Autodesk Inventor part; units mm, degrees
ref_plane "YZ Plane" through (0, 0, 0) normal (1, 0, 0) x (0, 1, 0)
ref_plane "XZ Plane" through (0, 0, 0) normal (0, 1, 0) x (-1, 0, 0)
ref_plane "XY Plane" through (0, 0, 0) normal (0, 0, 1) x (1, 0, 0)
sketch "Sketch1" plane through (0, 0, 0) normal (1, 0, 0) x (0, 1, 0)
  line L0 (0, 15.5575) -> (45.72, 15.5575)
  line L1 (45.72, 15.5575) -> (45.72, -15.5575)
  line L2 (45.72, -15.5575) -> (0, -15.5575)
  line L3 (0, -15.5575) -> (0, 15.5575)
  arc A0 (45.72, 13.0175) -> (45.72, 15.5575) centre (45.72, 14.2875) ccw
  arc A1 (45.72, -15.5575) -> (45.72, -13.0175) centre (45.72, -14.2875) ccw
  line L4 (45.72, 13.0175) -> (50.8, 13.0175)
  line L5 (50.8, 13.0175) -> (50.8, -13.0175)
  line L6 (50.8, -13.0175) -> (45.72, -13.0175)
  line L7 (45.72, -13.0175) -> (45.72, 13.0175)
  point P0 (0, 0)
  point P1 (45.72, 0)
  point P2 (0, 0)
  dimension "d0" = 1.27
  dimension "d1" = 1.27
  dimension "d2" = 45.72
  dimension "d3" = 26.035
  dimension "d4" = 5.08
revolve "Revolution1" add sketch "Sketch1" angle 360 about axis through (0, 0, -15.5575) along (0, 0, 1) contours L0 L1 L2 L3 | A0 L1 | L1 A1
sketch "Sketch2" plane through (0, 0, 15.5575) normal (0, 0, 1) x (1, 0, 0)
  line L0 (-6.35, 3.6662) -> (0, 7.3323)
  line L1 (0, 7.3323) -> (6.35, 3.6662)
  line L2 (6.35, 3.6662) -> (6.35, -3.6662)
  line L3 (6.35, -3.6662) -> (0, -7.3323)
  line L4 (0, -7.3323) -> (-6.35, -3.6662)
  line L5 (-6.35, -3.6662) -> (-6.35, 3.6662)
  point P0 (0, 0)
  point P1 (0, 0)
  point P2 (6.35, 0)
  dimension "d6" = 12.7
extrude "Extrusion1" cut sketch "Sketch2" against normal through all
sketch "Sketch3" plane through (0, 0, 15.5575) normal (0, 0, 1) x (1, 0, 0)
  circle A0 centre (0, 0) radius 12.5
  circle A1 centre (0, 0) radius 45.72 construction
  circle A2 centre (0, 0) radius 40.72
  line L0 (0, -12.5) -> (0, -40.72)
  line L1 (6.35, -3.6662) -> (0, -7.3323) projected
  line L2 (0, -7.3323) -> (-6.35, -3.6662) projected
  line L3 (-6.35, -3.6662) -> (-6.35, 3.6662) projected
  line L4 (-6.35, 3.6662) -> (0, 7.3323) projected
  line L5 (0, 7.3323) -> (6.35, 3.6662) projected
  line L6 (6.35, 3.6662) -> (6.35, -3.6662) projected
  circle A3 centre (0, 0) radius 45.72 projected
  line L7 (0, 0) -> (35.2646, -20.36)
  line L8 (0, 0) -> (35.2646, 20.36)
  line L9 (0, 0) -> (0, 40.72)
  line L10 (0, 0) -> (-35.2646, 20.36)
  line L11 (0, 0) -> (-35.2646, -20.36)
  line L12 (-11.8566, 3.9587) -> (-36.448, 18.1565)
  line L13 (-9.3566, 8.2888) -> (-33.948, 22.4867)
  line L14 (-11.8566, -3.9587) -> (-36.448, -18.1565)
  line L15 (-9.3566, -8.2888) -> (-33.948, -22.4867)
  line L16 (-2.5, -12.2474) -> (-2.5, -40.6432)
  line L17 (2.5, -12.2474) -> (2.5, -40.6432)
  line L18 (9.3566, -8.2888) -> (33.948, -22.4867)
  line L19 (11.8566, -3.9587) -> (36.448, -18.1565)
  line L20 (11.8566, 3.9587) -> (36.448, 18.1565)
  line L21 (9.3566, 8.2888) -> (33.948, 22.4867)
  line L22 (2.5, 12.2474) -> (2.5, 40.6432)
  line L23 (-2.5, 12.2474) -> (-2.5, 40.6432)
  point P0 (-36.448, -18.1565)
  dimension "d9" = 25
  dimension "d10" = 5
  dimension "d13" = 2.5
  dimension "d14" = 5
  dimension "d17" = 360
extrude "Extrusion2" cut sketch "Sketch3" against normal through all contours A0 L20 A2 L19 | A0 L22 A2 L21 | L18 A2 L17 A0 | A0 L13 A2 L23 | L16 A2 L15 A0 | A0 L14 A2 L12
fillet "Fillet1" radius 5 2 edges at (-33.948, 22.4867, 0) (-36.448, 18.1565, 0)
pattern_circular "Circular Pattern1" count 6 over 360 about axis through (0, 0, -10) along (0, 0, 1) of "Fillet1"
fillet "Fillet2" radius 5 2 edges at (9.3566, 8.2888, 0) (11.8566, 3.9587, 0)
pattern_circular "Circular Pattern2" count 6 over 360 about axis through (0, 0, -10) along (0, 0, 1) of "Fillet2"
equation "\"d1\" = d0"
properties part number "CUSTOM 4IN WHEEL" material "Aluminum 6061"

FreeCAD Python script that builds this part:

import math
import FreeCAD as App
import Part
import Sketcher
from FreeCAD import Vector
Q = App.Units.Quantity


def edges_at(feature, points):
    """Names of the edges that pass closest to the given points."""
    edges = feature.Shape.Edges
    near = lambda p: min(range(len(edges)), key=lambda i: edges[i].distToShape(Part.Vertex(*p))[0])
    return sorted({f"Edge{near(p) + 1}" for p in points})

doc = App.newDocument("Part")
body = doc.addObject("PartDesign::Body", "Body")

# Sketch on YZ plane
sketch1 = doc.addObject("Sketcher::SketchObject", "Sketch")
body.addObject(sketch1)
sketch1.AttachmentSupport = (doc.YZ_Plane, [""])
sketch1.MapMode = "FlatFace"
sketch1.addGeometry([
    Part.LineSegment(Vector(45.7, 15.6, 0), Vector(0, 15.6, 0)),  # 0
    Part.LineSegment(Vector(0, 15.6, 0), Vector(0, -15.6, 0)),  # 1
    Part.LineSegment(Vector(0, -15.6, 0), Vector(45.7, -15.6, 0)),  # 2
    Part.ArcOfCircle(Part.Circle(Vector(45.7, -14.3, 0), Vector(0, 0, 1), 1.3), math.radians(-90), math.radians(90)),  # 3
    Part.LineSegment(Vector(45.7, -13, 0), Vector(45.7, 13, 0)),  # 4
    Part.ArcOfCircle(Part.Circle(Vector(45.7, 14.3, 0), Vector(0, 0, 1), 1.3), math.radians(-90), math.radians(90)),  # 5
], False)
sketch1.addConstraint([
    Sketcher.Constraint("Coincident", 0, 2, 1, 1),
    Sketcher.Constraint("Coincident", 1, 2, 2, 1),
    Sketcher.Constraint("Tangent", 2, 2, 3, 1),
    Sketcher.Constraint("Coincident", 3, 2, 4, 1),
    Sketcher.Constraint("Coincident", 4, 2, 5, 1),
    Sketcher.Constraint("Tangent", 5, 2, 0, 1),
    Sketcher.Constraint("Horizontal", 0),
    Sketcher.Constraint("Vertical", 1),
    Sketcher.Constraint("Horizontal", 2),
    Sketcher.Constraint("Vertical", 4),
    Sketcher.Constraint("Equal", 3, 5),
    Sketcher.Constraint("Symmetric", 0, 2, 1, 2, -1, 1),
    Sketcher.Constraint("Vertical", 3, 3, 5, 3),
    Sketcher.Constraint("Vertical", 2, 2, 3, 2),
    Sketcher.Constraint("Radius", 3, Q("0.05 in")),
    Sketcher.Constraint("DistanceX", 0, 2, 0, 1, Q("1.8 in")),
    Sketcher.Constraint("DistanceY", 4, 1, 4, 2, Q("1.025 in")),
])
revolution = doc.addObject("PartDesign::Revolution", "Revolution")
body.addObject(revolution)
revolution.Profile = sketch1
revolution.ReferenceAxis = (sketch1, ["V_Axis"])
revolution.Angle = 360

# Sketch on XY plane
sketch2 = doc.addObject("Sketcher::SketchObject", "Sketch001")
body.addObject(sketch2)
sketch2.AttachmentSupport = (doc.XY_Plane, [""])
sketch2.MapMode = "FlatFace"
sketch2.AttachmentOffset = App.Placement(Vector(0, 0, 0.6125 * 25.4), App.Rotation())
sketch2.addGeometry([
    Part.LineSegment(Vector(0, 7, 0), Vector(-6, 4, 0)),  # 0
    Part.LineSegment(Vector(-6, 4, 0), Vector(-6, -4, 0)),  # 1
    Part.LineSegment(Vector(-6, -4, 0), Vector(0, -7, 0)),  # 2
    Part.LineSegment(Vector(0, -7, 0), Vector(6, -4, 0)),  # 3
    Part.LineSegment(Vector(6, -4, 0), Vector(6, 4, 0)),  # 4
    Part.LineSegment(Vector(6, 4, 0), Vector(0, 7, 0)),  # 5
], False)
sketch2.addConstraint([
    Sketcher.Constraint("Coincident", 0, 2, 1, 1),
    Sketcher.Constraint("Coincident", 1, 2, 2, 1),
    Sketcher.Constraint("Coincident", 2, 2, 3, 1),
    Sketcher.Constraint("Coincident", 3, 2, 4, 1),
    Sketcher.Constraint("Coincident", 4, 2, 5, 1),
    Sketcher.Constraint("Coincident", 5, 2, 0, 1),
    Sketcher.Constraint("Vertical", 1),
    Sketcher.Constraint("Vertical", 4),
    Sketcher.Constraint("Symmetric", 0, 2, 3, 2, -1, 1),
    Sketcher.Constraint("Symmetric", 2, 2, 5, 2, -1, 1),
    Sketcher.Constraint("PointOnObject", 2, 2, -2),
    Sketcher.Constraint("Parallel", 2, 5),
    Sketcher.Constraint("Horizontal", 1, 2, 3, 2),
    Sketcher.Constraint("DistanceX", 1, 2, 3, 2, Q("0.5 in")),
    Sketcher.Constraint("Angle", 0, Q("-150.0005 deg")),
    Sketcher.Constraint("DistanceY", 2, 2, 0, 2, Q("0.433 in")),
])
pocket1 = doc.addObject("PartDesign::Pocket", "Pocket")
body.addObject(pocket1)
pocket1.Profile = sketch2
pocket1.Type = "ThroughAll"

# Sketch on XY plane
sketch3 = doc.addObject("Sketcher::SketchObject", "Sketch002")
body.addObject(sketch3)
sketch3.AttachmentSupport = (doc.XY_Plane, [""])
sketch3.MapMode = "FlatFace"
sketch3.AttachmentOffset = App.Placement(Vector(0, 0, 0.6125 * 25.4), App.Rotation())
sketch3.addGeometry([
    Part.ArcOfCircle(Part.Circle(Vector(0, 0, 0), Vector(0, 0, 1), 12), math.radians(-18), math.radians(18)),  # 0
    Part.LineSegment(Vector(12, -4, 0), Vector(36, -18, 0)),  # 1
    Part.ArcOfCircle(Part.Circle(Vector(0, 0, 0), Vector(0, 0, 1), 41), math.radians(-26), math.radians(26)),  # 2
    Part.LineSegment(Vector(36, 18, 0), Vector(12, 4, 0)),  # 3
    Part.ArcOfCircle(Part.Circle(Vector(0, 0, 0), Vector(0, 0, 1), 12), math.radians(42), math.radians(78)),  # 4
    Part.LineSegment(Vector(9, 8, 0), Vector(34, 22, 0)),  # 5
    Part.ArcOfCircle(Part.Circle(Vector(0, 0, 0), Vector(0, 0, 1), 41), math.radians(34), math.radians(86)),  # 6
    Part.LineSegment(Vector(2, 41, 0), Vector(2, 12, 0)),  # 7
    Part.LineSegment(Vector(34, -22, 0), Vector(9, -8, 0)),  # 8
    Part.ArcOfCircle(Part.Circle(Vector(0, 0, 0), Vector(0, 0, 1), 12), math.radians(-78), math.radians(-42)),  # 9
    Part.LineSegment(Vector(2, -12, 0), Vector(2, -41, 0)),  # 10
    Part.ArcOfCircle(Part.Circle(Vector(0, 0, 0), Vector(0, 0, 1), 41), math.radians(-86), math.radians(-34)),  # 11
    Part.ArcOfCircle(Part.Circle(Vector(0, 0, 0), Vector(0, 0, 1), 12), math.radians(102), math.radians(138)),  # 12
    Part.LineSegment(Vector(-2, 12, 0), Vector(-2, 41, 0)),  # 13
    Part.ArcOfCircle(Part.Circle(Vector(0, 0, 0), Vector(0, 0, 1), 41), math.radians(94), math.radians(146)),  # 14
    Part.LineSegment(Vector(-34, 22, 0), Vector(-9, 8, 0)),  # 15
    Part.LineSegment(Vector(-2, -41, 0), Vector(-2, -12, 0)),  # 16
    Part.ArcOfCircle(Part.Circle(Vector(0, 0, 0), Vector(0, 0, 1), 12), math.radians(-138), math.radians(-102)),  # 17
    Part.LineSegment(Vector(-9, -8, 0), Vector(-34, -22, 0)),  # 18
    Part.ArcOfCircle(Part.Circle(Vector(0, 0, 0), Vector(0, 0, 1), 41), math.radians(-146), math.radians(-94)),  # 19
    Part.ArcOfCircle(Part.Circle(Vector(0, 0, 0), Vector(0, 0, 1), 12), math.radians(162), math.radians(198)),  # 20
    Part.LineSegment(Vector(-12, 4, 0), Vector(-36, 18, 0)),  # 21
    Part.ArcOfCircle(Part.Circle(Vector(0, 0, 0), Vector(0, 0, 1), 41), math.radians(154), math.radians(206)),  # 22
    Part.LineSegment(Vector(-36, -18, 0), Vector(-12, -4, 0)),  # 23
], False)
sketch3.addConstraint([
    Sketcher.Constraint("Coincident", 0, 1, 1, 1),
    Sketcher.Constraint("Coincident", 1, 2, 2, 1),
    Sketcher.Constraint("Coincident", 2, 2, 3, 1),
    Sketcher.Constraint("Coincident", 3, 2, 0, 2),
    Sketcher.Constraint("Coincident", 4, 1, 5, 1),
    Sketcher.Constraint("Coincident", 5, 2, 6, 1),
    Sketcher.Constraint("Coincident", 6, 2, 7, 1),
    Sketcher.Constraint("Coincident", 7, 2, 4, 2),
    Sketcher.Constraint("Coincident", 8, 2, 9, 2),
    Sketcher.Constraint("Coincident", 9, 1, 10, 1),
    Sketcher.Constraint("Coincident", 10, 2, 11, 1),
    Sketcher.Constraint("Coincident", 11, 2, 8, 1),
    Sketcher.Constraint("Coincident", 12, 1, 13, 1),
    Sketcher.Constraint("Coincident", 13, 2, 14, 1),
    Sketcher.Constraint("Coincident", 14, 2, 15, 1),
    Sketcher.Constraint("Coincident", 15, 2, 12, 2),
    Sketcher.Constraint("Coincident", 16, 2, 17, 2),
    Sketcher.Constraint("Coincident", 17, 1, 18, 1),
    Sketcher.Constraint("Coincident", 18, 2, 19, 1),
    Sketcher.Constraint("Coincident", 19, 2, 16, 1),
    Sketcher.Constraint("Coincident", 20, 1, 21, 1),
    Sketcher.Constraint("Coincident", 21, 2, 22, 1),
    Sketcher.Constraint("Coincident", 22, 2, 23, 1),
    Sketcher.Constraint("Coincident", 23, 2, 20, 2),
    Sketcher.Constraint("Vertical", 7),
    Sketcher.Constraint("Vertical", 10),
    Sketcher.Constraint("Vertical", 13),
    Sketcher.Constraint("Vertical", 16),
    Sketcher.Constraint("Coincident", 0, 3, -1, 1),
    Sketcher.Constraint("Coincident", 2, 3, -1, 1),
    Sketcher.Constraint("Coincident", 4, 3, -1, 1),
    Sketcher.Constraint("Coincident", 6, 3, -1, 1),
    Sketcher.Constraint("Coincident", 9, 3, -1, 1),
    Sketcher.Constraint("Coincident", 11, 3, -1, 1),
    Sketcher.Constraint("Coincident", 12, 3, -1, 1),
    Sketcher.Constraint("Coincident", 14, 3, -1, 1),
    Sketcher.Constraint("Coincident", 17, 3, -1, 1),
    Sketcher.Constraint("Coincident", 19, 3, -1, 1),
    Sketcher.Constraint("Coincident", 20, 3, -1, 1),
    Sketcher.Constraint("Coincident", 22, 3, -1, 1),
    Sketcher.Constraint("Equal", 0, 4),
    Sketcher.Constraint("Equal", 2, 6),
    Sketcher.Constraint("Equal", 4, 9),
    Sketcher.Constraint("Equal", 6, 11),
    Sketcher.Constraint("Equal", 9, 12),
    Sketcher.Constraint("Equal", 11, 14),
    Sketcher.Constraint("Equal", 12, 17),
    Sketcher.Constraint("Equal", 14, 19),
    Sketcher.Constraint("Equal", 17, 20),
    Sketcher.Constraint("Equal", 19, 22),
    Sketcher.Constraint("Parallel", 3, 5),
    Sketcher.Constraint("Parallel", 1, 8),
    Sketcher.Constraint("Parallel", 8, 15),
    Sketcher.Constraint("Parallel", 5, 18),
    Sketcher.Constraint("Parallel", 15, 21),
    Sketcher.Constraint("Parallel", 18, 23),
    Sketcher.Constraint("Horizontal", 7, 2, 12, 1),
    Sketcher.Constraint("Horizontal", 5, 2, 14, 2),
    Sketcher.Constraint("Horizontal", 4, 1, 15, 2),
    Sketcher.Constraint("Horizontal", 9, 1, 16, 2),
    Sketcher.Constraint("Horizontal", 8, 2, 17, 1),
    Sketcher.Constraint("Horizontal", 3, 2, 20, 1),
    Sketcher.Constraint("Horizontal", 1, 2, 22, 2),
    Sketcher.Constraint("Vertical", 1, 2, 2, 2),
    Sketcher.Constraint("Vertical", 4, 1, 8, 2),
    Sketcher.Constraint("Vertical", 7, 2, 9, 1),
    Sketcher.Constraint("Equal", 3, 5),
    Sketcher.Constraint("Radius", 0, 12.5),
    Sketcher.Constraint("Angle", 1, Q("-30 deg")),
    Sketcher.Constraint("DistanceX", -1, 1, 6, 2, 2.5),
    Sketcher.Constraint("Radius", 2, 40.72),
    Sketcher.Constraint("DistanceX", 4, 1, 3, 2, 2.5),
])
pocket2 = doc.addObject("PartDesign::Pocket", "Pocket001")
body.addObject(pocket2)
pocket2.Profile = sketch3
pocket2.Type = "ThroughAll"
doc.recompute()

fillet = doc.addObject("PartDesign::Fillet", "Fillet")
body.addObject(fillet)
fillet.Base = (pocket2, edges_at(pocket2, [(-33.948, 22.487, 0), (-36.448, 18.157, 0)]))
fillet.Radius = 5
doc.recompute()

polarpattern = doc.addObject("PartDesign::PolarPattern", "PolarPattern")
body.addObject(polarpattern)
polarpattern.Originals = [fillet]
polarpattern.Axis = (doc.Z_Axis, [""])
polarpattern.Angle = 360
polarpattern.Occurrences = 6
body.Tip = polarpattern
doc.recompute()

fillet2 = doc.addObject("PartDesign::Fillet", "Fillet001")
body.addObject(fillet2)
fillet2.Base = (polarpattern, edges_at(polarpattern, [(9.357, 8.289, 0), (11.857, 3.959, 0)]))
fillet2.Radius = 5
doc.recompute()

polarpattern2 = doc.addObject("PartDesign::PolarPattern", "PolarPattern001")
body.addObject(polarpattern2)
polarpattern2.Originals = [fillet2]
polarpattern2.Axis = (doc.Z_Axis, [""])
polarpattern2.Angle = 360
polarpattern2.Occurrences = 6
body.Tip = polarpattern2

doc.recompute()
